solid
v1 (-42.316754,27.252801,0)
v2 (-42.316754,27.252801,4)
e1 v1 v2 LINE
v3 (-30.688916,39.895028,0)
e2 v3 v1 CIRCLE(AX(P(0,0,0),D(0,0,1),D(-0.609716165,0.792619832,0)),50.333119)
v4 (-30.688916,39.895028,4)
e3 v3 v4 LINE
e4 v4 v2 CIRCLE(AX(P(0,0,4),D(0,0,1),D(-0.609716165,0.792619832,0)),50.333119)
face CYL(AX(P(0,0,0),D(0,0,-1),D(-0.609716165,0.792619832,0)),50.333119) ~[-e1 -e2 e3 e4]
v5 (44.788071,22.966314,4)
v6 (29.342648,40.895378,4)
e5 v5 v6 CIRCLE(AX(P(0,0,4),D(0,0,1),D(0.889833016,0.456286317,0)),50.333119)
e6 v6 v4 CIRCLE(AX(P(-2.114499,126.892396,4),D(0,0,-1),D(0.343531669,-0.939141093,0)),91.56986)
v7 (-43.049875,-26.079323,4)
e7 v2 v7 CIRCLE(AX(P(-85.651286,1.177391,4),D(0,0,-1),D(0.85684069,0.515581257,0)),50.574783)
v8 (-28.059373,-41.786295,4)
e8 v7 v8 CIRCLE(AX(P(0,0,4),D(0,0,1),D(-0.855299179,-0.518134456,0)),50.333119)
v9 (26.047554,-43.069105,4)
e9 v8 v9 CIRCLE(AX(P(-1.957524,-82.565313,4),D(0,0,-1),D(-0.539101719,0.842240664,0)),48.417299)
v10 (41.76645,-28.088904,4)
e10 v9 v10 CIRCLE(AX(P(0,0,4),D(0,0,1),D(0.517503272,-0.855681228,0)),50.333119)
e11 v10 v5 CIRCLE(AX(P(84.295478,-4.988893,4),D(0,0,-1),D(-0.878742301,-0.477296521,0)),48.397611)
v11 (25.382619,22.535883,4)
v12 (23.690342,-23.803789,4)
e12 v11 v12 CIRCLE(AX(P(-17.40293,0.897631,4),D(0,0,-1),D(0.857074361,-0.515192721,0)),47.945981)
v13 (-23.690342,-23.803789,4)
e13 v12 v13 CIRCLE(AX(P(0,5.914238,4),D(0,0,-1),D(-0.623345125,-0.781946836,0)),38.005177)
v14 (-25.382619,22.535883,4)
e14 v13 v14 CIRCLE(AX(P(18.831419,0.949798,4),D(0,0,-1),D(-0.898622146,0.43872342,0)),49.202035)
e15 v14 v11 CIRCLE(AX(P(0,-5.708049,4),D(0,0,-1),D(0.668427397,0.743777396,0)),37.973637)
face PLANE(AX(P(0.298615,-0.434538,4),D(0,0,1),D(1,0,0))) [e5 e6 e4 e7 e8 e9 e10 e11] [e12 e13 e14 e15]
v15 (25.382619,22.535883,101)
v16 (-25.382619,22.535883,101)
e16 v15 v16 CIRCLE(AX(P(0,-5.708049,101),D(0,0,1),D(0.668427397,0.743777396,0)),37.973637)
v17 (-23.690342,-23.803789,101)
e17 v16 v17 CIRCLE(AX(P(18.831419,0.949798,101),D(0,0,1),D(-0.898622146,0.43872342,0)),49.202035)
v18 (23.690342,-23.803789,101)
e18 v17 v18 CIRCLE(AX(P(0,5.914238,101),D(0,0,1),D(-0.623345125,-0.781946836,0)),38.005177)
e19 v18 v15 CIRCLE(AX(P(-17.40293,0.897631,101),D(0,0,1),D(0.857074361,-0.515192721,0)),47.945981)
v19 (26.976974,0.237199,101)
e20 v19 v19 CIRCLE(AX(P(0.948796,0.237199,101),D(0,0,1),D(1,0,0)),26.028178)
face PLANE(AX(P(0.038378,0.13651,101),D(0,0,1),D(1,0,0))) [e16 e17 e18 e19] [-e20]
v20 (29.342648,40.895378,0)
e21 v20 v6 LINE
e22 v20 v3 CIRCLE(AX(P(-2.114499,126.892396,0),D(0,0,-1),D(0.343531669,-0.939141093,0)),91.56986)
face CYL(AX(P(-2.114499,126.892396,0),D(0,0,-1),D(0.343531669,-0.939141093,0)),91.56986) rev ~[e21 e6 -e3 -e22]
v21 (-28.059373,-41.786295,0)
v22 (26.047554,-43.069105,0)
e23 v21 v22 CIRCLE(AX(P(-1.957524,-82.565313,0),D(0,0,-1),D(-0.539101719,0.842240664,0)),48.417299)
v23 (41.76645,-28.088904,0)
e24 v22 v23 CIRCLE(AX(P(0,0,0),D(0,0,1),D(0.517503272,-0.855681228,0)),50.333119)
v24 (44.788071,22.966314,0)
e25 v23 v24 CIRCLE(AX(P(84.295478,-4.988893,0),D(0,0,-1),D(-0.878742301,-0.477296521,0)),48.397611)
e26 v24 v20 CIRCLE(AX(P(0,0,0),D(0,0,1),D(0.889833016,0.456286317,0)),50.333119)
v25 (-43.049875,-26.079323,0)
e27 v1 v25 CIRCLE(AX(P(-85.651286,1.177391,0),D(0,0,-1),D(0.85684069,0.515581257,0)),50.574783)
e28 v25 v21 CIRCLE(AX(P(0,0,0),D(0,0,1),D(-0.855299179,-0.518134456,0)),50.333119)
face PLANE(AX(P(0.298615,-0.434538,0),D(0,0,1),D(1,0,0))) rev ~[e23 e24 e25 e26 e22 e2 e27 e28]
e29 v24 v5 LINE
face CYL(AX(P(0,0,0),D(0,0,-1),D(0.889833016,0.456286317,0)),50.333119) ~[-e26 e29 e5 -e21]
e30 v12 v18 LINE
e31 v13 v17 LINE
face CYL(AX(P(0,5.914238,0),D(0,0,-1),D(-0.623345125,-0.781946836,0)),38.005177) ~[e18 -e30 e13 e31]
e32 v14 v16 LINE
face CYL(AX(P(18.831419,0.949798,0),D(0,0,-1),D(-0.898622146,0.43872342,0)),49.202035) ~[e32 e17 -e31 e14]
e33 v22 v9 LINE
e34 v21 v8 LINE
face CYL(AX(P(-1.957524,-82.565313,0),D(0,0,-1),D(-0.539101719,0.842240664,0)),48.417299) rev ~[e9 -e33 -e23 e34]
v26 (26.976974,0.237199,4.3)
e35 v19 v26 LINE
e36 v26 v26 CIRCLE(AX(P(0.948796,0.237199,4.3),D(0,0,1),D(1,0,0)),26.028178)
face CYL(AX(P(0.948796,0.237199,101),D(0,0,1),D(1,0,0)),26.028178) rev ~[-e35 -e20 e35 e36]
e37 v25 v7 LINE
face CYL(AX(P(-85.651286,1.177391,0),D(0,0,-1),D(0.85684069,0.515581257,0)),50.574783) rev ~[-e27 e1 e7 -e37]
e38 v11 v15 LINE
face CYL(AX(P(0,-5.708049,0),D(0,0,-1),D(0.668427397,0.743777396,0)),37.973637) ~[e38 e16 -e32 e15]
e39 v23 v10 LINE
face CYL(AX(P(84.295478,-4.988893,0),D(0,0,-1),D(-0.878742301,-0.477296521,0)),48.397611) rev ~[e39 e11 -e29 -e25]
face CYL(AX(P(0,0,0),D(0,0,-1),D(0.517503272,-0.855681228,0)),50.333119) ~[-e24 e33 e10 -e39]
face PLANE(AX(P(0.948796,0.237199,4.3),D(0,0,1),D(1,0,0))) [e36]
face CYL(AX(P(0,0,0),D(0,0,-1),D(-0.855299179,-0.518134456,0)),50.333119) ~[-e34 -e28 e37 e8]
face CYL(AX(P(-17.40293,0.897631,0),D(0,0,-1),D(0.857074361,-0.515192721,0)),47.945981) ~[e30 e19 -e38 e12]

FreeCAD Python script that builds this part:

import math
import FreeCAD as App
import Part
import Sketcher

V = App.Vector
Q = App.Units.Quantity

doc = App.newDocument("Part")
body = doc.addObject("PartDesign::Body", "Body")

# Sketch on XY plane
sketch1 = body.newObject("Sketcher::SketchObject", "Sketch")
sketch1.AttachmentSupport = (doc.getObject("XY_Plane"), [""])
sketch1.MapMode = "FlatFace"
sketch1.addGeometry([
    Part.ArcOfCircle(Part.Circle(V(-17.40293, 0.897631, 0), V(0, 0, 1), 47.945981), math.radians(-31.010338), math.radians(26.82743)),
    Part.ArcOfCircle(Part.Circle(V(0, -5.708049, 0), V(0, 0, 1), 37.973637), math.radians(48.054194), math.radians(131.945806)),
    Part.ArcOfCircle(Part.Circle(V(18.831419, 0.949798, 0), V(0, 0, 1), 49.202035), math.radians(153.977541), math.radians(210.205366)),
    Part.ArcOfCircle(Part.Circle(V(0, 5.914238, 0), V(0, 0, 1), 38.005177), math.radians(-128.560827), math.radians(-51.439173)),
], False)
sketch1.addConstraint([
    Sketcher.Constraint("Coincident", 0, 2, 1, 1),
    Sketcher.Constraint("Coincident", 1, 2, 2, 1),
    Sketcher.Constraint("Coincident", 2, 2, 3, 1),
    Sketcher.Constraint("Coincident", 3, 2, 0, 1),
    Sketcher.Constraint("Symmetric", 0, 2, 1, 2, -2),
    Sketcher.Constraint("Symmetric", 2, 2, 3, 2, -2),
    Sketcher.Constraint("Radius", 0, Q("47.945981 mm")),
    Sketcher.Constraint("Radius", 1, Q("37.973637 mm")),
    Sketcher.Constraint("Radius", 2, Q("49.202035 mm")),
    Sketcher.Constraint("Radius", 3, Q("38.005177 mm")),
    Sketcher.Constraint("DistanceY", -1, 1, 2, 3, Q("0.949798 mm")),
    Sketcher.Constraint("DistanceX", 2, 3, 0, 2, Q("6.5512 mm")),
    Sketcher.Constraint("DistanceX", 0, 3, -1, 1, Q("17.40293 mm")),
    Sketcher.Constraint("DistanceY", -1, 1, 0, 3, Q("0.897631 mm")),
])
pad1 = body.newObject("PartDesign::Pad", "Pad")
pad1.Profile = sketch1
pad1.Length = 101

# Sketch on XY plane
sketch2 = body.newObject("Sketcher::SketchObject", "Sketch001")
sketch2.AttachmentSupport = (doc.getObject("XY_Plane"), [""])
sketch2.MapMode = "FlatFace"
sketch2.AttachmentOffset = App.Placement(V(0, 0, 101), App.Rotation())
sketch2.addGeometry(Part.Circle(V(0.948796, 0.237199, 0), V(0, 0, 1), 26.028178), False)
sketch2.addConstraint([
    Sketcher.Constraint("Diameter", 0, Q("52.056355 mm")),
    Sketcher.Constraint("DistanceY", -1, 1, 0, 3, Q("0.237199 mm")),
    Sketcher.Constraint("DistanceX", -1, 1, 0, 3, Q("0.948796 mm")),
])
pocket1 = body.newObject("PartDesign::Pocket", "Pocket")
pocket1.Profile = sketch2
pocket1.Length = 96.7

# Sketch on XY plane
sketch3 = body.newObject("Sketcher::SketchObject", "Sketch002")
sketch3.AttachmentSupport = (doc.getObject("XY_Plane"), [""])
sketch3.MapMode = "FlatFace"
sketch3.addGeometry([
    Part.ArcOfCircle(Part.Circle(V(84.295478, -4.988893, 0), V(0, 0, 1), 48.397611), math.radians(144.717002), math.radians(208.508982)),  # 0
    Part.ArcOfCircle(Part.Circle(V(0, 0, 0), V(0, 0, 1), 50.333119), math.radians(27.147729), math.radians(54.340362)),  # 1
    Part.ArcOfCircle(Part.Circle(V(-2.114499, 126.892396, 0), V(0, 0, 1), 91.56986), math.radians(-108.182844), math.radians(-69.907811)),  # 2
    Part.ArcOfCircle(Part.Circle(V(0, 0, 0), V(0, 0, 1), 50.333119), math.radians(127.568983), math.radians(147.217688)),  # 3
    Part.ArcOfCircle(Part.Circle(V(-85.651286, 1.177391, 0), V(0, 0, 1), 50.574783), math.radians(-32.611429), math.radians(31.036315)),  # 4
    Part.ArcOfCircle(Part.Circle(V(0, 0, 0), V(0, 0, 1), 50.333119), math.radians(-148.792803), math.radians(-123.881243)),  # 5
    Part.ArcOfCircle(Part.Circle(V(-1.957524, -82.565313, 0), V(0, 0, 1), 48.417299), math.radians(54.661171), math.radians(122.62251)),  # 6
    Part.ArcOfCircle(Part.Circle(V(0, 0, 0), V(0, 0, 1), 50.333119), math.radians(-58.835076), math.radians(-33.921744)),  # 7
], False)
sketch3.addConstraint([
    Sketcher.Constraint("Coincident", 0, 1, 1, 1),
    Sketcher.Constraint("Coincident", 1, 2, 2, 2),
    Sketcher.Constraint("Coincident", 2, 1, 3, 1),
    Sketcher.Constraint("Coincident", 3, 2, 4, 2),
    Sketcher.Constraint("Coincident", 4, 1, 5, 1),
    Sketcher.Constraint("Coincident", 5, 2, 6, 2),
    Sketcher.Constraint("Coincident", 6, 1, 7, 1),
    Sketcher.Constraint("Coincident", 7, 2, 0, 2),
    Sketcher.Constraint("Coincident", 1, 3, -1, 1),
    Sketcher.Constraint("Coincident", 3, 3, -1, 1),
    Sketcher.Constraint("Coincident", 5, 3, -1, 1),
    Sketcher.Constraint("Coincident", 7, 3, -1, 1),
    Sketcher.Constraint("Equal", 1, 3),
    Sketcher.Constraint("Equal", 3, 5),
    Sketcher.Constraint("Equal", 5, 7),
    Sketcher.Constraint("Radius", 6, Q("48.417299 mm")),
    Sketcher.Constraint("Radius", 0, Q("48.397611 mm")),
    Sketcher.Constraint("Radius", 1, Q("50.333119 mm")),
    Sketcher.Constraint("Radius", 2, Q("91.56986 mm")),
    Sketcher.Constraint("Radius", 4, Q("50.574783 mm")),
    Sketcher.Constraint("DistanceX", 2, 3, -1, 1, Q("2.114499 mm")),
    Sketcher.Constraint("DistanceY", -1, 1, 3, 2, Q("27.252801 mm")),
    Sketcher.Constraint("DistanceY", 6, 1, 7, 2, Q("14.980201 mm")),
    Sketcher.Constraint("DistanceX", -1, 1, 0, 3, Q("84.295478 mm")),
    Sketcher.Constraint("DistanceY", -1, 1, 4, 3, Q("1.177391 mm")),
    Sketcher.Constraint("DistanceX", -1, 1, 0, 1, Q("44.788071 mm")),
    Sketcher.Constraint("DistanceY", -1, 1, 2, 1, Q("39.895028 mm")),
    Sketcher.Constraint("DistanceY", 6, 3, 0, 3, Q("77.576421 mm")),
])
pad2 = body.newObject("PartDesign::Pad", "Pad001")
pad2.Profile = sketch3
pad2.Length = 4

doc.recompute()
